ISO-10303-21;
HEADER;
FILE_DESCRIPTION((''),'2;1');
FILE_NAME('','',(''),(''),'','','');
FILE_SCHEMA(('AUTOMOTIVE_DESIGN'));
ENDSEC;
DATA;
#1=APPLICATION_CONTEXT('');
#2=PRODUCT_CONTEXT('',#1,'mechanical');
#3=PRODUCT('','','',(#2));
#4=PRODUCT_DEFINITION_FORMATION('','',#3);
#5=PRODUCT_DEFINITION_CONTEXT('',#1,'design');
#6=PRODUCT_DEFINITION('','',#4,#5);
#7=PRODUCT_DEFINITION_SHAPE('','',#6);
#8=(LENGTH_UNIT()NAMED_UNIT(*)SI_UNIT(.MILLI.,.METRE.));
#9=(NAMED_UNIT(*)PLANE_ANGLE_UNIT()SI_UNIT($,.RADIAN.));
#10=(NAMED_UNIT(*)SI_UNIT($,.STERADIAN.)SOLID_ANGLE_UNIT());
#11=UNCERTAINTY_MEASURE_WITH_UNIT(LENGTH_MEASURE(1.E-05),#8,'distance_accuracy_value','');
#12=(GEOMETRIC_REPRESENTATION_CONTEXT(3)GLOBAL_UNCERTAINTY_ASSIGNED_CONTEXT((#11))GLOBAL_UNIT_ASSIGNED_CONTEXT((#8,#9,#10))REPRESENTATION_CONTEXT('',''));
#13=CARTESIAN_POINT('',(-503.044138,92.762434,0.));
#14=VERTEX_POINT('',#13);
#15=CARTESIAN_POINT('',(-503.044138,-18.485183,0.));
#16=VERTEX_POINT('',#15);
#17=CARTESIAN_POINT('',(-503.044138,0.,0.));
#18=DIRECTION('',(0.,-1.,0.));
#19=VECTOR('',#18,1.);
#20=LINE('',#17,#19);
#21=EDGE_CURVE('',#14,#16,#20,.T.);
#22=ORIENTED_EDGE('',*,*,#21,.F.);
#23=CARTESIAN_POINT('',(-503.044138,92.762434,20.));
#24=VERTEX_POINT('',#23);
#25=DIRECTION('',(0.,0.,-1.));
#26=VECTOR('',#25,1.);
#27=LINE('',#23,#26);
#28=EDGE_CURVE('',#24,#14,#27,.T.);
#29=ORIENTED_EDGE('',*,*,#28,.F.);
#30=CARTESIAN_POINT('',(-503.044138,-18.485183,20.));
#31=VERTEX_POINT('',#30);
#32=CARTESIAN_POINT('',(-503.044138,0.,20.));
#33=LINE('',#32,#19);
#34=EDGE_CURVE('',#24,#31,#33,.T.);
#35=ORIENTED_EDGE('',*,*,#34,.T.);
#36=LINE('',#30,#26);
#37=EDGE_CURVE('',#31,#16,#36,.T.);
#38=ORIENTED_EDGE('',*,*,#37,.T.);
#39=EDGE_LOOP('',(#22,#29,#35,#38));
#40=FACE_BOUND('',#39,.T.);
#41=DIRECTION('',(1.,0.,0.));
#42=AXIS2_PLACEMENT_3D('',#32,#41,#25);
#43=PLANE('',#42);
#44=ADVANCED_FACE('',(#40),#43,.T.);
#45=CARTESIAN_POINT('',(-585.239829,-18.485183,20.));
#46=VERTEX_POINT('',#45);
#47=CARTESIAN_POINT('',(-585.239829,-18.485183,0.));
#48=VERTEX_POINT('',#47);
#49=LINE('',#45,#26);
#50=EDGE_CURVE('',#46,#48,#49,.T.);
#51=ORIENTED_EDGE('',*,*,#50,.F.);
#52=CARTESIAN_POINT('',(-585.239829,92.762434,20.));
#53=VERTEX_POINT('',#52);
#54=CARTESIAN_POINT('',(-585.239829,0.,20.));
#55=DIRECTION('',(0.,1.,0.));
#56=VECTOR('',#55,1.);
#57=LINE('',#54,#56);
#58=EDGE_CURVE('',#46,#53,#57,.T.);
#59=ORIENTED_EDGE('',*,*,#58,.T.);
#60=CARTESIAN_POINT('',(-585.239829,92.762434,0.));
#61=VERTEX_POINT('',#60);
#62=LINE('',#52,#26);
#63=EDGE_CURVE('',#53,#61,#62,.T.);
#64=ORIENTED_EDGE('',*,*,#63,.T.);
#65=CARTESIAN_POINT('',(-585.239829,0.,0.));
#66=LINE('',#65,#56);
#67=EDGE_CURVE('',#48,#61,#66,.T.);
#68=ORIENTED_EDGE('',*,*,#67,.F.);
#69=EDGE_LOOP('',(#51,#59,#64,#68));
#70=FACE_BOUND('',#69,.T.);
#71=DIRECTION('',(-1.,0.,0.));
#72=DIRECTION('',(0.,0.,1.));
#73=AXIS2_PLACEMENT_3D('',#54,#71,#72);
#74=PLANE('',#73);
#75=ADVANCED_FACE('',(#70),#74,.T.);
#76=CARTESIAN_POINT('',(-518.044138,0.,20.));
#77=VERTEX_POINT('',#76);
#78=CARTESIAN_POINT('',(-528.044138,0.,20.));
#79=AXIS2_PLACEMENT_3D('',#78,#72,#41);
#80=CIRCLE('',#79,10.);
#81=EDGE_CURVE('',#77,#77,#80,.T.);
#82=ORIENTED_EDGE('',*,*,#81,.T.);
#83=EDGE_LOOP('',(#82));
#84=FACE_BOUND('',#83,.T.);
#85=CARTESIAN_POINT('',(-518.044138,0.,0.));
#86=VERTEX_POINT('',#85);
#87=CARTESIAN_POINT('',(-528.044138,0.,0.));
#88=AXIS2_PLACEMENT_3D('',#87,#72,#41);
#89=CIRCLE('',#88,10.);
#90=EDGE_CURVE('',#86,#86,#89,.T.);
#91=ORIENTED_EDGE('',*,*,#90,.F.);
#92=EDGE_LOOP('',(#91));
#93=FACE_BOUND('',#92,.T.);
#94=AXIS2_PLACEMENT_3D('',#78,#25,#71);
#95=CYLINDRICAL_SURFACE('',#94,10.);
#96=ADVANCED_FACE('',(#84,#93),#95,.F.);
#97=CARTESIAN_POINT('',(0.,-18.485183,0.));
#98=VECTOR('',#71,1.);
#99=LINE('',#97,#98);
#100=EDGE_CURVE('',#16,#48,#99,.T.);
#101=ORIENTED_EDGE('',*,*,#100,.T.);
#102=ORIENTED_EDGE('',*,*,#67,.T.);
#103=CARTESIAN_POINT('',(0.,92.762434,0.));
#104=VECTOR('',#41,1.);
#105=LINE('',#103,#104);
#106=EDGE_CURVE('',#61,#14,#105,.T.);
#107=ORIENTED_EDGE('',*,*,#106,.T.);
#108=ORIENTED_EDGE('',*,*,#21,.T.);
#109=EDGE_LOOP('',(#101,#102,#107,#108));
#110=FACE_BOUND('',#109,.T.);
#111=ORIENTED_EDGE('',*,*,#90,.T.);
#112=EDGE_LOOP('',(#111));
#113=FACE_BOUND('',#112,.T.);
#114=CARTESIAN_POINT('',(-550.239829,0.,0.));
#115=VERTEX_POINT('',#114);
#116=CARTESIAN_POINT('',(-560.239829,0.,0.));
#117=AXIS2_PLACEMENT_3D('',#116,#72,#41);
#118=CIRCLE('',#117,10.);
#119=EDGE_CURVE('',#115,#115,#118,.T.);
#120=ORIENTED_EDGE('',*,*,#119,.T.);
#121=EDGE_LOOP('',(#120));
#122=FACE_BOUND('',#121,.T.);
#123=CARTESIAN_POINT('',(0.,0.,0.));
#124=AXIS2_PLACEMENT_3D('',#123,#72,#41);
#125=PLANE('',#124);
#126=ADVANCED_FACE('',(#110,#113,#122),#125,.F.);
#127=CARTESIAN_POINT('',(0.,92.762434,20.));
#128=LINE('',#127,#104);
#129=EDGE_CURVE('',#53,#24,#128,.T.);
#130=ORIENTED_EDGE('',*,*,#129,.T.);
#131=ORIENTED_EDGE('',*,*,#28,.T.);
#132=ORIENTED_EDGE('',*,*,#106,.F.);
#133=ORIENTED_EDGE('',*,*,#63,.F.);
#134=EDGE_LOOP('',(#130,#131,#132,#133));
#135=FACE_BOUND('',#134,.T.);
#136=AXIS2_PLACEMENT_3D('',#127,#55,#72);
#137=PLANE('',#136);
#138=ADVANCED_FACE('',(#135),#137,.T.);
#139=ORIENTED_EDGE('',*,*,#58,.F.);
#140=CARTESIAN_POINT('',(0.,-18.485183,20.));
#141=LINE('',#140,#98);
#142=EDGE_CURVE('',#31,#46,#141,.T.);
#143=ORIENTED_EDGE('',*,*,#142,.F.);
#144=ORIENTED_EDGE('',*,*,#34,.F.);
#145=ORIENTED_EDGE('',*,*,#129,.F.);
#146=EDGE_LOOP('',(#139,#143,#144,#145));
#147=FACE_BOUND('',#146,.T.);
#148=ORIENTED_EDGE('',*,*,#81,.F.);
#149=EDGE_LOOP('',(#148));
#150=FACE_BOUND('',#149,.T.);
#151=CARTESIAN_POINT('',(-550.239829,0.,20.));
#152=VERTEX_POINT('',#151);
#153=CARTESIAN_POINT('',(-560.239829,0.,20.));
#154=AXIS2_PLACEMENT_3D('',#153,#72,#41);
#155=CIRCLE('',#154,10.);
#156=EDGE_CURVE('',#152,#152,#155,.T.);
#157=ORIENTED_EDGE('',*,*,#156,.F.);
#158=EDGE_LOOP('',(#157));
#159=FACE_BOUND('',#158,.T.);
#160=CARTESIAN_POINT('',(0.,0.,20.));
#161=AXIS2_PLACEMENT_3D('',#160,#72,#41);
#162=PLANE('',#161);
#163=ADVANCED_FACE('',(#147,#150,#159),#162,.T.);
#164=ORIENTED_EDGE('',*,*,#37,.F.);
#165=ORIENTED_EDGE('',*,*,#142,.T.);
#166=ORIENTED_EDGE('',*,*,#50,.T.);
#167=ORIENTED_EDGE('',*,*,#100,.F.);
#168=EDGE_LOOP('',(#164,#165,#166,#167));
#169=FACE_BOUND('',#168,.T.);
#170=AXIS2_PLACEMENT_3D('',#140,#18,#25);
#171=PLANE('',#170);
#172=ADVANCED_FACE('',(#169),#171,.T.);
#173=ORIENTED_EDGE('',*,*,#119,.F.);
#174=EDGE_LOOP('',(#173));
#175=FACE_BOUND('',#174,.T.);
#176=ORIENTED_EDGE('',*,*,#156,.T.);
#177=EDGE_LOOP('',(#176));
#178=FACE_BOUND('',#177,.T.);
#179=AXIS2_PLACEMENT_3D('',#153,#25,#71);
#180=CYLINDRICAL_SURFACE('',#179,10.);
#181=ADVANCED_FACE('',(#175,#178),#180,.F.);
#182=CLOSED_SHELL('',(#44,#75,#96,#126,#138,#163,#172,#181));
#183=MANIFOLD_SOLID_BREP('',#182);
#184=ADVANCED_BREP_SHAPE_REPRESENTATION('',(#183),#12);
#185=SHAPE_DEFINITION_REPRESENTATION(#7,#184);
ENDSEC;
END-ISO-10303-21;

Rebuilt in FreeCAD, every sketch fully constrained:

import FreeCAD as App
import Part
import Sketcher


def add_polygon(sketch, points):
    """Adds a closed chain of lines whose ends are joined by coincident constraints."""
    first, n = sketch.GeometryCount, len(points)
    for a, b in zip(points, points[1:] + points[:1]):
        sketch.addGeometry(Part.LineSegment(App.Vector(*a, 0), App.Vector(*b, 0)), False)
    for i in range(n):
        sketch.addConstraint(Sketcher.Constraint("Coincident", first + i, 2, first + (i + 1) % n, 1))

doc = App.newDocument("Part")
body = doc.addObject("PartDesign::Body", "Body")

sketch1 = doc.addObject("Sketcher::SketchObject", "Sketch")
body.addObject(sketch1)
sketch1.AttachmentSupport = (doc.XY_Plane, [""])
sketch1.MapMode = "FlatFace"
add_polygon(sketch1, [(-585, 93), (-585, -18), (-503, -18), (-503, 93)])
sketch1.addGeometry(Part.Circle(App.Vector(-560, 0, 0), App.Vector(0, 0, 1), 10), False)
sketch1.addGeometry(Part.Circle(App.Vector(-528, 0, 0), App.Vector(0, 0, 1), 10), False)
sketch1.addConstraint(Sketcher.Constraint("Vertical", 0))
sketch1.addConstraint(Sketcher.Constraint("Horizontal", 1))
sketch1.addConstraint(Sketcher.Constraint("Vertical", 2))
sketch1.addConstraint(Sketcher.Constraint("Horizontal", 3))
sketch1.addConstraint(Sketcher.Constraint("Equal", 4, 5))
sketch1.addConstraint(Sketcher.Constraint("PointOnObject", 4, 3, -1))
sketch1.addConstraint(Sketcher.Constraint("PointOnObject", 5, 3, -1))
sketch1.addConstraint(Sketcher.Constraint("Diameter", 4, 20.0))
sketch1.addConstraint(Sketcher.Constraint("DistanceX", 0, 2, 4, 3, 25.0))
sketch1.addConstraint(Sketcher.Constraint("DistanceX", 5, 3, 1, 2, 25.0))
sketch1.addConstraint(Sketcher.Constraint("DistanceX", 1, 1, 1, 2, 82.195691))
sketch1.addConstraint(Sketcher.Constraint("DistanceY", 0, 2, 0, 1, 111.247617))
sketch1.addConstraint(Sketcher.Constraint("DistanceX", 4, 3, -1, 1, 560.239829))
sketch1.addConstraint(Sketcher.Constraint("DistanceY", 0, 2, -1, 1, 18.485183))
pad1 = doc.addObject("PartDesign::Pad", "Pad")
body.addObject(pad1)
pad1.Profile = sketch1
pad1.Length = 20

doc.recompute()
